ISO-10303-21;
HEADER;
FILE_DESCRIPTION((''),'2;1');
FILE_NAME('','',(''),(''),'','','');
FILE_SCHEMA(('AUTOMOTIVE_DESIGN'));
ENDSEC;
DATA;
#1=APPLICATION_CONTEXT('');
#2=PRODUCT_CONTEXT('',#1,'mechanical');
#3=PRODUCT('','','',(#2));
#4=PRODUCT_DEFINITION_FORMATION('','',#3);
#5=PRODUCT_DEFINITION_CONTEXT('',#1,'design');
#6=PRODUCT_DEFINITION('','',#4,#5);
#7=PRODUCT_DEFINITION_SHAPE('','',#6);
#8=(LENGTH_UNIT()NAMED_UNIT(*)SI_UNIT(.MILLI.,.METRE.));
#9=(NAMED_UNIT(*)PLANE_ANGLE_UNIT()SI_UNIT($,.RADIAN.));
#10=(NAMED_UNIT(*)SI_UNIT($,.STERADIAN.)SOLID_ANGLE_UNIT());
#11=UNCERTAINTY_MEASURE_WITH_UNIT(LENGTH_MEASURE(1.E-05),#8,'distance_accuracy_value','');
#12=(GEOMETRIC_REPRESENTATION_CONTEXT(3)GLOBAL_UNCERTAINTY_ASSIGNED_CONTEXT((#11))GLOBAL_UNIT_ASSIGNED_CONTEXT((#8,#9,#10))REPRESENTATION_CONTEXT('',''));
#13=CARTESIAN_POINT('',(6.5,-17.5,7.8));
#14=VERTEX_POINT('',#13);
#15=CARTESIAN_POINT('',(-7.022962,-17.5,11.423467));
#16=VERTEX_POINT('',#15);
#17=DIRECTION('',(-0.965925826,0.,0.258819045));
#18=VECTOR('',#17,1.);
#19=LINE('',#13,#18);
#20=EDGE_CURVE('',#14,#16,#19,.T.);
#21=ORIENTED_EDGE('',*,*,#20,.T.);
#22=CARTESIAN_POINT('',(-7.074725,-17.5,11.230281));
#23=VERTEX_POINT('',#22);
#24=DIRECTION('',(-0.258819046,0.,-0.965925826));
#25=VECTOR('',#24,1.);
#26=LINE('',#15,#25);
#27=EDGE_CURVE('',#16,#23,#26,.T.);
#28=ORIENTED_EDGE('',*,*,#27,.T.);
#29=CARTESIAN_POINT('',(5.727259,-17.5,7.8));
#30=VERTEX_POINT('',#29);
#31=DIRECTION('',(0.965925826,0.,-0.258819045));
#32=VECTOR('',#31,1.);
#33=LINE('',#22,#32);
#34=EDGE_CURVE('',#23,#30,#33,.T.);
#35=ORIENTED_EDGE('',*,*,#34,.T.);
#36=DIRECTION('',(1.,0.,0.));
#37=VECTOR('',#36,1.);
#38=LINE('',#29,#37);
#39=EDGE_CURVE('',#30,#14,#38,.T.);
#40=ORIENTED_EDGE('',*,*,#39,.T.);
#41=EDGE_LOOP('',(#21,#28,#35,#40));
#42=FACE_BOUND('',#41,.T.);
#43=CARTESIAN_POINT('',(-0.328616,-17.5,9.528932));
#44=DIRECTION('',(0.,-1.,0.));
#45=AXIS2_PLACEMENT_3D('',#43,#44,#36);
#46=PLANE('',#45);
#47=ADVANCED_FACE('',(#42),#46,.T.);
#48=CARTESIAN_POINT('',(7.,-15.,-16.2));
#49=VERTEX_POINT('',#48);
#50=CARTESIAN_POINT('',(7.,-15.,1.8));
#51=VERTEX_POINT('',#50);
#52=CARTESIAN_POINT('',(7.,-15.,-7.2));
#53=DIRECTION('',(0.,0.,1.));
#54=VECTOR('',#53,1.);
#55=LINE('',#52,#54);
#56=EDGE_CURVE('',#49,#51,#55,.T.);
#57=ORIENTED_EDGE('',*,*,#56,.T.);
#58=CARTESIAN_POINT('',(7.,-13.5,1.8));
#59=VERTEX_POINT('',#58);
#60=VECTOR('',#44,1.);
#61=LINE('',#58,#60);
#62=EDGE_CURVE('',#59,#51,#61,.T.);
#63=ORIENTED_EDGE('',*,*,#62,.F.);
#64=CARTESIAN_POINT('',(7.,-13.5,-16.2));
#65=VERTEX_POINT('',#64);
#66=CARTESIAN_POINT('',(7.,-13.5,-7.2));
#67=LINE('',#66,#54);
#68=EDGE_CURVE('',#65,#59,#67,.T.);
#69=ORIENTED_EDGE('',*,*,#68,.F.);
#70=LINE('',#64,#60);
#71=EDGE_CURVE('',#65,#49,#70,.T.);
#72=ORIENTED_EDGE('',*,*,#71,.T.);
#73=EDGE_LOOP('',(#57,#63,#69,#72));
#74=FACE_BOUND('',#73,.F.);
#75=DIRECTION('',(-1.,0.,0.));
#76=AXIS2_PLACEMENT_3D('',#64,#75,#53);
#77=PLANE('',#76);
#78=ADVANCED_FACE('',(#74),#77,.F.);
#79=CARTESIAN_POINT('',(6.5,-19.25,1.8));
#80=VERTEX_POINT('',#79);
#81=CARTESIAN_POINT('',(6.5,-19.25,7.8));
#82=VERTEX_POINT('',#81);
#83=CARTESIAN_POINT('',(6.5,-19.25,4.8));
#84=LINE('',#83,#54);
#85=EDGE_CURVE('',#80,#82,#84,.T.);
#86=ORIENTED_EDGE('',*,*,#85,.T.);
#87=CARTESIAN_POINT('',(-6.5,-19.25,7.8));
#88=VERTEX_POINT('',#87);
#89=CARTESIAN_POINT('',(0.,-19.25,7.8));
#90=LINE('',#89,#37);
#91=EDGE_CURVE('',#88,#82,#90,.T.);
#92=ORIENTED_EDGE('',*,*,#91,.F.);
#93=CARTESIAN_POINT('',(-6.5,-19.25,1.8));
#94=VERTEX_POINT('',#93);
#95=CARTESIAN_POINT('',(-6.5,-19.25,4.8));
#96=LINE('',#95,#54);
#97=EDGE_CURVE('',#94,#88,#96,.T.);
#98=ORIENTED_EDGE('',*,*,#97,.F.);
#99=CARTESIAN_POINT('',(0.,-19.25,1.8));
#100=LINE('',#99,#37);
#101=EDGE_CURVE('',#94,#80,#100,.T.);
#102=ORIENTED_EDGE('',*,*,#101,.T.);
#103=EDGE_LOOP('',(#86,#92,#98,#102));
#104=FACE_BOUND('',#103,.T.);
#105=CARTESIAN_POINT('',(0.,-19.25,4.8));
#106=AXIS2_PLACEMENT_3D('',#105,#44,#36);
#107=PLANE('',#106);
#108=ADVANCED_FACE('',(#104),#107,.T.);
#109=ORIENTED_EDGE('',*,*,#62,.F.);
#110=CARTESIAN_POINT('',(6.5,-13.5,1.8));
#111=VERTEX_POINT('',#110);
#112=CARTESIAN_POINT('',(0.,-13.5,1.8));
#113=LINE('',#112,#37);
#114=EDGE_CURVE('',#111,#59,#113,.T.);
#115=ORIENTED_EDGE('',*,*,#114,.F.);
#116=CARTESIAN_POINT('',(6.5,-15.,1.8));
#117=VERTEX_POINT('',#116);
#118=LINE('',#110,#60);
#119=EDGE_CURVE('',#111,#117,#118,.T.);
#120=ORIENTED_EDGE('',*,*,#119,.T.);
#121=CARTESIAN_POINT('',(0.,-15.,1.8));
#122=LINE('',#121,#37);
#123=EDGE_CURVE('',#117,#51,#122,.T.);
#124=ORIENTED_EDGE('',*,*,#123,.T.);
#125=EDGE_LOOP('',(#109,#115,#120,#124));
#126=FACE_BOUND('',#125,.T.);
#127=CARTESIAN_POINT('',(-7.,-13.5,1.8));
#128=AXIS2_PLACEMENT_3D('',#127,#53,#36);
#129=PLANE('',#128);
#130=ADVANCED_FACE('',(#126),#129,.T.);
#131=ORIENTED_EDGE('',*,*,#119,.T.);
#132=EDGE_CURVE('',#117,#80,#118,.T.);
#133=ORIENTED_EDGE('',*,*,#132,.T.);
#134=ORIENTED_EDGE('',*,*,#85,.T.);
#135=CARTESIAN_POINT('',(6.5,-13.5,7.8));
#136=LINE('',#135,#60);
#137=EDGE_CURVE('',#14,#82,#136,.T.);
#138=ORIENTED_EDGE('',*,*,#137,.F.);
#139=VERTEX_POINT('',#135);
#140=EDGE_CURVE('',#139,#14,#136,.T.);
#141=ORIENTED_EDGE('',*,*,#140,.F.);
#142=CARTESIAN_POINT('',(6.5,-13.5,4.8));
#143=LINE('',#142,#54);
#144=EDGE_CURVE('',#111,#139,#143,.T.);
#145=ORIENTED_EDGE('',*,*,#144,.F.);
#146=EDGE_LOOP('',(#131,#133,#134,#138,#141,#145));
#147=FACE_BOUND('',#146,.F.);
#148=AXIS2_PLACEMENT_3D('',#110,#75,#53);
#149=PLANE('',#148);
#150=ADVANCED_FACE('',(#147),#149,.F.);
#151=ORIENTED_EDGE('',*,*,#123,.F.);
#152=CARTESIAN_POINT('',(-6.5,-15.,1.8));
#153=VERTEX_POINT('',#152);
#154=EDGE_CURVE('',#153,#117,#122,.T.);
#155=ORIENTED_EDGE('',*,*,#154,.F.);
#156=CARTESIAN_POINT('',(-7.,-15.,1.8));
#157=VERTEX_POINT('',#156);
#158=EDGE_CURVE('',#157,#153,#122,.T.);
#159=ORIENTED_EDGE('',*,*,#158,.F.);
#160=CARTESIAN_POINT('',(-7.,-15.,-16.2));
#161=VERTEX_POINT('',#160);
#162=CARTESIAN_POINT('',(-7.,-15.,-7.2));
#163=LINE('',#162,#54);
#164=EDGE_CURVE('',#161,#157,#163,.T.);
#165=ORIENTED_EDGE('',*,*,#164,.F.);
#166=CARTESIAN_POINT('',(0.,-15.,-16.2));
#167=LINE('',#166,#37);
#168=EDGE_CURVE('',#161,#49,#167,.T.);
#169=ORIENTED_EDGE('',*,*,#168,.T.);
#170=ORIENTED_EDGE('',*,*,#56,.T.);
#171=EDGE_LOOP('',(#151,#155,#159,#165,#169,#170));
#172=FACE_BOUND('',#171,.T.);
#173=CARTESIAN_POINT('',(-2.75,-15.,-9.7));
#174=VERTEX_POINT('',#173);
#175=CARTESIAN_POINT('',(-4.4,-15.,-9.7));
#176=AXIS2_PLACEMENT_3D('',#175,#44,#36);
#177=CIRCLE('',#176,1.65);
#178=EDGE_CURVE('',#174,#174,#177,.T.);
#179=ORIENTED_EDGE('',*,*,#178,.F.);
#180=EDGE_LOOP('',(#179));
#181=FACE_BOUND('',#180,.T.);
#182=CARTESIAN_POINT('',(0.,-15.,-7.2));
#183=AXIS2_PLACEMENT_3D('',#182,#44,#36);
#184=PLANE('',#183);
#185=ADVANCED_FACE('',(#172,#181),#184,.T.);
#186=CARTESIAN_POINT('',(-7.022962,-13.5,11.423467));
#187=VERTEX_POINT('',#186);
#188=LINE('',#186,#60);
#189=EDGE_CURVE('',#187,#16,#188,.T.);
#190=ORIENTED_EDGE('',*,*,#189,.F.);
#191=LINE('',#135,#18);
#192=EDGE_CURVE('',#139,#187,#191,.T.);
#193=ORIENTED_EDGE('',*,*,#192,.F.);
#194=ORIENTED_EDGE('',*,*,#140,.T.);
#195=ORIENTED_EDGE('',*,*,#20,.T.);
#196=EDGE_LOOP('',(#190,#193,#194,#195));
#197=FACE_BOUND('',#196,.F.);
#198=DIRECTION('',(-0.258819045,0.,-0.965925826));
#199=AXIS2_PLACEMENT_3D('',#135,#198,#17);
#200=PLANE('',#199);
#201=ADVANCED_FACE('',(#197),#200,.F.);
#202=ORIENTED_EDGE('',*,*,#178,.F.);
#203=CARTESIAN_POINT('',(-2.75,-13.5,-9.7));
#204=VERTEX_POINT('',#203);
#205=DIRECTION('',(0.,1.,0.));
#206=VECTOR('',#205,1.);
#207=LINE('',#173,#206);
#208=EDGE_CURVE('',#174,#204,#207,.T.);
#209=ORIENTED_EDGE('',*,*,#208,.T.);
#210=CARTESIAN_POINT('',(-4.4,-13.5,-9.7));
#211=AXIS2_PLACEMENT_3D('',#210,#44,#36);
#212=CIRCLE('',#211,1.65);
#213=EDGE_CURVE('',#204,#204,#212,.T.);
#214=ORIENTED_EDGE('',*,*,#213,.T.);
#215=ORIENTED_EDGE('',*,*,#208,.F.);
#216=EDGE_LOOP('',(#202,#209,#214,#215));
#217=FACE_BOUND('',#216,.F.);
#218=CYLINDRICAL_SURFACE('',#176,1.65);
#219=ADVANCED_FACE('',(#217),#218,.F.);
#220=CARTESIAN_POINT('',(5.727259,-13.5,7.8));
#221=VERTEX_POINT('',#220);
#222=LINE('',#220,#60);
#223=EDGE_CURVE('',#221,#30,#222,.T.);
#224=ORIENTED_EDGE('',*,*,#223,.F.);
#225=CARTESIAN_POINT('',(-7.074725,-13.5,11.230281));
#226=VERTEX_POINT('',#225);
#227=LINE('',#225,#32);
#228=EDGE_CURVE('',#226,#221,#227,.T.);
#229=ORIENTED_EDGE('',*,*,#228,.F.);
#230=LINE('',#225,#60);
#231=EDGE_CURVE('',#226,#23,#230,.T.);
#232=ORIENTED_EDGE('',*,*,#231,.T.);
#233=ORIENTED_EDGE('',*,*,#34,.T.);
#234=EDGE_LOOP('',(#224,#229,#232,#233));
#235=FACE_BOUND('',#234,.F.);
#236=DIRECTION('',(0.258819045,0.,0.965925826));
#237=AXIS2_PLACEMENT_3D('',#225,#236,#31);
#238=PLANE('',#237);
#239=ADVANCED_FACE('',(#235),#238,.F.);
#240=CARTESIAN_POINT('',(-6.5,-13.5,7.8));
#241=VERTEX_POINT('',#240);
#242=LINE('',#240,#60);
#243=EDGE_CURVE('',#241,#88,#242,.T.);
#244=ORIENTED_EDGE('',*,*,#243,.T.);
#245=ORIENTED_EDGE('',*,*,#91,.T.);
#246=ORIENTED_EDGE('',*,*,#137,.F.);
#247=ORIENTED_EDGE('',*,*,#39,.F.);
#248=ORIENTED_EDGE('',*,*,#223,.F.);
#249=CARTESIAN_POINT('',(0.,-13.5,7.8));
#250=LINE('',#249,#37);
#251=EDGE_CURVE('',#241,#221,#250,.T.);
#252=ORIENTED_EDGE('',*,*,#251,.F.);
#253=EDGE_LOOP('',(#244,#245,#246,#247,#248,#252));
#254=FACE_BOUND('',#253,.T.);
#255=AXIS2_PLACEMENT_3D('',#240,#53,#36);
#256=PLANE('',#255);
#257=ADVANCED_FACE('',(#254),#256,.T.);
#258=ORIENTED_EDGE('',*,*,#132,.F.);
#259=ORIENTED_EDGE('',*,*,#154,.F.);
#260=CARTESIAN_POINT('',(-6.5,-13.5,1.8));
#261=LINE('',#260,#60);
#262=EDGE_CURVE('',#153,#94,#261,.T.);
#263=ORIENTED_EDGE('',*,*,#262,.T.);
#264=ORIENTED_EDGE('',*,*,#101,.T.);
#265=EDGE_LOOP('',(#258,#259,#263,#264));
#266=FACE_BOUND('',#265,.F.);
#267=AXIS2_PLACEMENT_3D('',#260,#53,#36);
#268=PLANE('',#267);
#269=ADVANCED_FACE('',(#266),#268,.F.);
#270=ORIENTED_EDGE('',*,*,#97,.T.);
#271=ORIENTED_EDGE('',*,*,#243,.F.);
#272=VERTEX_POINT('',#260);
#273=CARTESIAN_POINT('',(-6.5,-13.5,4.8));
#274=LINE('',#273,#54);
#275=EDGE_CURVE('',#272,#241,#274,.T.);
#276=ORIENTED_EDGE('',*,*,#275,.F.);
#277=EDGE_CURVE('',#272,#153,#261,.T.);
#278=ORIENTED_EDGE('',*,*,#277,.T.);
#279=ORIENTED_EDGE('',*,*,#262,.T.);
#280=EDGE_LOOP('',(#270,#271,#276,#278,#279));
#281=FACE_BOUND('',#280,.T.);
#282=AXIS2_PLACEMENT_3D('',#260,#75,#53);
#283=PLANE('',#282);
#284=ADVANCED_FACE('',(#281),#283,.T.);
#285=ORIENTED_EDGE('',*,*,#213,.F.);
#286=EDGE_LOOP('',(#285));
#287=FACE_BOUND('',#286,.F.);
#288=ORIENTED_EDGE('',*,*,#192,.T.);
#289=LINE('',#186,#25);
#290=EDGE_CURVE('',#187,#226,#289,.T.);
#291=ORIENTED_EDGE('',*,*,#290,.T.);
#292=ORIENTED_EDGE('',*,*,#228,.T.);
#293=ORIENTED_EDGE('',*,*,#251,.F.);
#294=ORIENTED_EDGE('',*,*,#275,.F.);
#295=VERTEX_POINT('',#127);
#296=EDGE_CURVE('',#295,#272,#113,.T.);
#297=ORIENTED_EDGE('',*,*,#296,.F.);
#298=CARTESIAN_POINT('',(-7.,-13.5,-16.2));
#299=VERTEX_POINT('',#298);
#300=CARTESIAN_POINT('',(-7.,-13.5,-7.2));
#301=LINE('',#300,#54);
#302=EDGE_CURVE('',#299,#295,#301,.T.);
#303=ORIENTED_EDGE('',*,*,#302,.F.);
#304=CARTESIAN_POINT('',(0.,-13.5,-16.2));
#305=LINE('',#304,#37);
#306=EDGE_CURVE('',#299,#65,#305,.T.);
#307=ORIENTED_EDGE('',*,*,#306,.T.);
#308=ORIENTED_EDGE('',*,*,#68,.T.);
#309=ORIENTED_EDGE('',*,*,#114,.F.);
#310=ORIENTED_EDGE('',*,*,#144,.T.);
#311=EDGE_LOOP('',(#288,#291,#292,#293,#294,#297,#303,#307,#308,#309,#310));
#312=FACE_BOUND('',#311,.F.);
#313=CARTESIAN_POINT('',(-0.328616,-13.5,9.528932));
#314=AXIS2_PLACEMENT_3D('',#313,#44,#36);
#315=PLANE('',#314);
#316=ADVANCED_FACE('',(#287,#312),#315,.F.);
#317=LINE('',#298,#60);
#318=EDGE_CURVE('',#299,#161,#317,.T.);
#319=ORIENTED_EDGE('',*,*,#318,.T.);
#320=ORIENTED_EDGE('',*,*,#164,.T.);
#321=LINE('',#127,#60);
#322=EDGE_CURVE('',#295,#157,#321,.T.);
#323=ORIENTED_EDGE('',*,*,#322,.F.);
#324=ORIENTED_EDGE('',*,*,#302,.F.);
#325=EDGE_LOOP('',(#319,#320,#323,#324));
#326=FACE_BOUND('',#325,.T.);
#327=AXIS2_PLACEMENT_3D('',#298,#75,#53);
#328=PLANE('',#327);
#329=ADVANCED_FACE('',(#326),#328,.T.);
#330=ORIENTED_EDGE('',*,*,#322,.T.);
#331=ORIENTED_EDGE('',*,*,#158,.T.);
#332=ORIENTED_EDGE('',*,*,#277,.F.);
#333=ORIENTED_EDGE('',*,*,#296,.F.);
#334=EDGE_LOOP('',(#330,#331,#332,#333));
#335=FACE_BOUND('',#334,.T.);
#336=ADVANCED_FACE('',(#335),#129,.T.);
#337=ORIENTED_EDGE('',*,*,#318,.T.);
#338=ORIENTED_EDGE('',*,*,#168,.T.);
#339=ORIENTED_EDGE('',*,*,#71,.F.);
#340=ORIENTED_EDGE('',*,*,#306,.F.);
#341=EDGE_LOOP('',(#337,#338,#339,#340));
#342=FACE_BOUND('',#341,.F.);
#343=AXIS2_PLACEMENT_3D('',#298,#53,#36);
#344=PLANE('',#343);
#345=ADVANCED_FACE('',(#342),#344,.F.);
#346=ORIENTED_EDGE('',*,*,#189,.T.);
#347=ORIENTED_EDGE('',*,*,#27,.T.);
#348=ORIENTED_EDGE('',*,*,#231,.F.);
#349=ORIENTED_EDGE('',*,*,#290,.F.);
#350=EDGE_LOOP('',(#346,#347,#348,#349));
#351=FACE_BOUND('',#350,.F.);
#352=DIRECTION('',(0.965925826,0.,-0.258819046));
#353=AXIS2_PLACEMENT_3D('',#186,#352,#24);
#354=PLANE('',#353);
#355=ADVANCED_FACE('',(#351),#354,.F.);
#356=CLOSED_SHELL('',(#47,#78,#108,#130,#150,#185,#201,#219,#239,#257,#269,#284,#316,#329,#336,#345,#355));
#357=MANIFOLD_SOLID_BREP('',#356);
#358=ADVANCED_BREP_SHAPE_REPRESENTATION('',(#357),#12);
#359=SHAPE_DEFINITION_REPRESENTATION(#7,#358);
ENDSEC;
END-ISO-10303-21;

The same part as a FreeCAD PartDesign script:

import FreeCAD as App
import Part
import Sketcher
from FreeCAD import Vector
Q = App.Units.Quantity

doc = App.newDocument("Part")
body = doc.addObject("PartDesign::Body", "Body")

sketch1 = body.newObject("Sketcher::SketchObject", "Sketch")
sketch1.AttachmentSupport = (doc.getObject("XY_Plane"), [""])
sketch1.MapMode = "FlatFace"
sketch1.addGeometry([
    Part.LineSegment(Vector(-7, 9, 0), Vector(-7, -9, 0)),
    Part.LineSegment(Vector(-7, -9, 0), Vector(7, -9, 0)),
    Part.LineSegment(Vector(7, -9, 0), Vector(7, 9, 0)),
    Part.LineSegment(Vector(7, 9, 0), Vector(-7, 9, 0)),
], False)
sketch1.addConstraint([
    Sketcher.Constraint("Coincident", 0, 2, 1, 1),
    Sketcher.Constraint("Coincident", 1, 2, 2, 1),
    Sketcher.Constraint("Coincident", 2, 2, 3, 1),
    Sketcher.Constraint("Coincident", 3, 2, 0, 1),
    Sketcher.Constraint("Vertical", 0),
    Sketcher.Constraint("Horizontal", 1),
    Sketcher.Constraint("Vertical", 2),
    Sketcher.Constraint("Horizontal", 3),
    Sketcher.Constraint("Symmetric", 0, 2, 2, 2, -1, 1),
    Sketcher.Constraint("DistanceX", 1, 1, 1, 2, Q("14 mm")),
    Sketcher.Constraint("DistanceY", 0, 2, 0, 1, Q("18 mm")),
])
pad1 = body.newObject("PartDesign::Pad", "Pad")
pad1.Profile = sketch1
pad1.Length = 1.5

sketch2 = body.newObject("Sketcher::SketchObject", "Sketch001")
sketch2.AttachmentSupport = (doc.getObject("XY_Plane"), [""])
sketch2.MapMode = "FlatFace"
sketch2.addGeometry([
    Part.LineSegment(Vector(-6, 15, 0), Vector(-6, 9, 0)),
    Part.LineSegment(Vector(-6, 9, 0), Vector(6, 9, 0)),
    Part.LineSegment(Vector(6, 9, 0), Vector(6, 15, 0)),
    Part.LineSegment(Vector(6, 15, 0), Vector(-6, 15, 0)),
], False)
sketch2.addConstraint([
    Sketcher.Constraint("Coincident", 0, 2, 1, 1),
    Sketcher.Constraint("Coincident", 1, 2, 2, 1),
    Sketcher.Constraint("Coincident", 2, 2, 3, 1),
    Sketcher.Constraint("Coincident", 3, 2, 0, 1),
    Sketcher.Constraint("Vertical", 0),
    Sketcher.Constraint("Horizontal", 1),
    Sketcher.Constraint("Vertical", 2),
    Sketcher.Constraint("Horizontal", 3),
    Sketcher.Constraint("DistanceX", 1, 1, 1, 2, Q("13 mm")),
    Sketcher.Constraint("DistanceY", 0, 2, 0, 1, Q("6 mm")),
    Sketcher.Constraint("DistanceY", -1, 1, 0, 2, Q("9 mm")),
    Sketcher.Constraint("DistanceX", 0, 2, -1, 1, Q("6.5 mm")),
])
pad2 = body.newObject("PartDesign::Pad", "Pad001")
pad2.Profile = sketch2
pad2.Length = 5.75

sketch3 = body.newObject("Sketcher::SketchObject", "Sketch002")
sketch3.AttachmentSupport = (doc.getObject("XY_Plane"), [""])
sketch3.MapMode = "FlatFace"
sketch3.AttachmentOffset = App.Placement(Vector(0, 0, 1.5), App.Rotation())
sketch3.addGeometry(Part.Circle(Vector(-4.4, -2.5, 0), Vector(0, 0, 1), 1.6), False)
sketch3.addConstraint([
    Sketcher.Constraint("Diameter", 0, Q("3.3 mm")),
    Sketcher.Constraint("DistanceX", 0, 3, -1, 1, Q("4.4 mm")),
    Sketcher.Constraint("DistanceY", 0, 3, -1, 1, Q("2.5 mm")),
])
pocket1 = body.newObject("PartDesign::Pocket", "Pocket")
pocket1.Profile = sketch3
pocket1.Length = 25

sketch4 = body.newObject("Sketcher::SketchObject", "Sketch003")
sketch4.AttachmentSupport = (doc.getObject("XY_Plane"), [""])
sketch4.MapMode = "FlatFace"
sketch4.addGeometry([
    Part.LineSegment(Vector(5.73, 15, 0), Vector(6.5, 15, 0)),
    Part.LineSegment(Vector(6.5, 15, 0), Vector(-7.02, 18.62, 0)),
    Part.LineSegment(Vector(-7.02, 18.62, 0), Vector(-7.07, 18.43, 0)),
    Part.LineSegment(Vector(-7.07, 18.43, 0), Vector(5.73, 15, 0)),
], False)
sketch4.addConstraint([
    Sketcher.Constraint("Coincident", 0, 2, 1, 1),
    Sketcher.Constraint("Coincident", 1, 2, 2, 1),
    Sketcher.Constraint("Coincident", 2, 2, 3, 1),
    Sketcher.Constraint("Coincident", 3, 2, 0, 1),
    Sketcher.Constraint("Horizontal", 0),
    Sketcher.Constraint("Perpendicular", 1, 2),
    Sketcher.Constraint("Perpendicular", 2, 3),
    Sketcher.Constraint("Angle", 1, Q("165 deg")),
    Sketcher.Constraint("Distance", 1, Q("14 mm")),
    Sketcher.Constraint("DistanceY", -1, 1, 0, 2, Q("15 mm")),
    Sketcher.Constraint("Distance", 2, Q("0.2 mm")),
    Sketcher.Constraint("DistanceX", -1, 1, 0, 2, Q("6.5 mm")),
])
pad3 = body.newObject("PartDesign::Pad", "Pad002")
pad3.Profile = sketch4
pad3.Length = 4
body2 = doc.addObject("PartDesign::Body", "Body001")
doc.recompute()

body.Placement = App.Placement(Vector(0, -7.5, 10.5), App.Rotation(Vector(-1, 0, 0), 270))
boolean = body2.newObject("PartDesign::Boolean", "Boolean")
boolean.Type = "Fuse"
boolean.addObjects([body])
body3 = doc.addObject("PartDesign::Body", "Body002")
doc.recompute()

body2.Placement = App.Placement(Vector(0, -6, -17.7), App.Rotation(Vector(0, 0, 1), 0))
boolean2 = body3.newObject("PartDesign::Boolean", "Boolean001")
boolean2.Type = "Fuse"
boolean2.addObjects([body2])

doc.recompute()
